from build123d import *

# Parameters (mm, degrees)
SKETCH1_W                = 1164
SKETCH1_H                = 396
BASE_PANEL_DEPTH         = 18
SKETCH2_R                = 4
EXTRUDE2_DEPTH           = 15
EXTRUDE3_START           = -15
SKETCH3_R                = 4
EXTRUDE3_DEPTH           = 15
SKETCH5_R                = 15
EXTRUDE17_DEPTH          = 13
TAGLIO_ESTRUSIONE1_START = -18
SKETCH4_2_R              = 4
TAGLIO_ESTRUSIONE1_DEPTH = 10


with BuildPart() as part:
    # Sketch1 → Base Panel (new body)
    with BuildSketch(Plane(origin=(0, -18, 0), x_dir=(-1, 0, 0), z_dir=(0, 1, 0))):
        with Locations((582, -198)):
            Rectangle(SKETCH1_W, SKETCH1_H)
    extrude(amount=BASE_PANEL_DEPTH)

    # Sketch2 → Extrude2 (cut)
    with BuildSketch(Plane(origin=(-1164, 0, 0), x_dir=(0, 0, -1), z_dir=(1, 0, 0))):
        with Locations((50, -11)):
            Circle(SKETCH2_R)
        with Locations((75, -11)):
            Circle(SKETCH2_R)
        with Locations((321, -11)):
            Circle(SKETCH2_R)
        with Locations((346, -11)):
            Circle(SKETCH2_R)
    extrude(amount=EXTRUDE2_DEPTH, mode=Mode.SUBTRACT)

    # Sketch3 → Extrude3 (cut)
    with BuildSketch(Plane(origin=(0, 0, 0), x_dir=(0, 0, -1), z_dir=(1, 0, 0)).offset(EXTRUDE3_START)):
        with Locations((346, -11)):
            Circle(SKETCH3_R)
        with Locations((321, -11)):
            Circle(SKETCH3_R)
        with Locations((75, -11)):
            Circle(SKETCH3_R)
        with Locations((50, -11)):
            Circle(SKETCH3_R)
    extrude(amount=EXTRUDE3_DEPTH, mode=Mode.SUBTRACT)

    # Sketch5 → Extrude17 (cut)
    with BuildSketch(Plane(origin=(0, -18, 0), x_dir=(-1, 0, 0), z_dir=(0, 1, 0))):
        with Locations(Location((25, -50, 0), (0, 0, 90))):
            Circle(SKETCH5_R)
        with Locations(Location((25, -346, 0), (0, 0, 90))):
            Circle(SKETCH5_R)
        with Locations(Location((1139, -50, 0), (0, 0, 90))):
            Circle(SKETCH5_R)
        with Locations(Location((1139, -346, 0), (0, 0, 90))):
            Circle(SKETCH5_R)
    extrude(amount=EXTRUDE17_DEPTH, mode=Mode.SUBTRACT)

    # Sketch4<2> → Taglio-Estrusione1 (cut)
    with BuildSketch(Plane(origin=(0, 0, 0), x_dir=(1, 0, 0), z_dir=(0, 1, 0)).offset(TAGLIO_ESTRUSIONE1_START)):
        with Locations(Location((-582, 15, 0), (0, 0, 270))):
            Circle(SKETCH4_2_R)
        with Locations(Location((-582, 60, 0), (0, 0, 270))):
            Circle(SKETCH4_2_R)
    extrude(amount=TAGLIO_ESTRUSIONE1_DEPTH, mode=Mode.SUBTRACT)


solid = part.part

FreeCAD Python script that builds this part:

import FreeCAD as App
import Part
import Sketcher
Q = App.Units.Quantity

doc = App.newDocument("Part")
body = doc.addObject("PartDesign::Body", "Body")

sketch1 = doc.addObject("Sketcher::SketchObject", "Sketch")
body.addObject(sketch1)
sketch1.AttachmentSupport = (doc.XZ_Plane, [""])
sketch1.MapMode = "FlatFace"
sketch1.AttachmentOffset = App.Placement(App.Vector(0, 0, 18), App.Rotation())
sketch1.addGeometry(Part.LineSegment(App.Vector(0, 0, 0), App.Vector(0, -396, 0)), False)
sketch1.addGeometry(Part.LineSegment(App.Vector(0, -396, 0), App.Vector(-1164, -396, 0)), False)
sketch1.addGeometry(Part.LineSegment(App.Vector(-1164, -396, 0), App.Vector(-1164, 0, 0)), False)
sketch1.addGeometry(Part.LineSegment(App.Vector(-1164, 0, 0), App.Vector(0, 0, 0)), False)
sketch1.addConstraint(Sketcher.Constraint("Coincident", 0, 2, 1, 1))
sketch1.addConstraint(Sketcher.Constraint("Coincident", 1, 2, 2, 1))
sketch1.addConstraint(Sketcher.Constraint("Coincident", 2, 2, 3, 1))
sketch1.addConstraint(Sketcher.Constraint("Coincident", 3, 2, 0, 1))
sketch1.addConstraint(Sketcher.Constraint("Vertical", 0))
sketch1.addConstraint(Sketcher.Constraint("Horizontal", 1))
sketch1.addConstraint(Sketcher.Constraint("Vertical", 2))
sketch1.addConstraint(Sketcher.Constraint("Horizontal", 3))
sketch1.addConstraint(Sketcher.Constraint("Coincident", 3, 2, -1, 1))
sketch1.addConstraint(Sketcher.Constraint("DistanceX", 1, 2, 1, 1, Q("1164 mm")))
sketch1.addConstraint(Sketcher.Constraint("DistanceY", 0, 2, 0, 1, Q("396 mm")))
pad1 = doc.addObject("PartDesign::Pad", "Pad")
body.addObject(pad1)
pad1.Profile = sketch1
pad1.Length = 18
pad1.Reversed = True

sketch2 = doc.addObject("Sketcher::SketchObject", "Sketch001")
body.addObject(sketch2)
sketch2.AttachmentSupport = (doc.YZ_Plane, [""])
sketch2.MapMode = "FlatFace"
sketch2.AttachmentOffset = App.Placement(App.Vector(0, 0, -1164), App.Rotation())
sketch2.addGeometry(Part.Circle(App.Vector(-11, -50, 0), App.Vector(0, 0, 1), 4), False)
sketch2.addGeometry(Part.Circle(App.Vector(-11, -75, 0), App.Vector(0, 0, 1), 4), False)
sketch2.addGeometry(Part.Circle(App.Vector(-11, -321, 0), App.Vector(0, 0, 1), 4), False)
sketch2.addGeometry(Part.Circle(App.Vector(-11, -346, 0), App.Vector(0, 0, 1), 4), False)
sketch2.addConstraint(Sketcher.Constraint("Equal", 0, 1))
sketch2.addConstraint(Sketcher.Constraint("Equal", 1, 2))
sketch2.addConstraint(Sketcher.Constraint("Equal", 2, 3))
sketch2.addConstraint(Sketcher.Constraint("Vertical", 0, 3, 1, 3))
sketch2.addConstraint(Sketcher.Constraint("Vertical", 1, 3, 2, 3))
sketch2.addConstraint(Sketcher.Constraint("Vertical", 2, 3, 3, 3))
sketch2.addConstraint(Sketcher.Constraint("Diameter", 0, Q("8 mm")))
sketch2.addConstraint(Sketcher.Constraint("DistanceX", 0, 3, -1, 1, Q("11 mm")))
sketch2.addConstraint(Sketcher.Constraint("DistanceY", 0, 3, -1, 1, Q("50 mm")))
sketch2.addConstraint(Sketcher.Constraint("DistanceY", 1, 3, -1, 1, Q("75 mm")))
sketch2.addConstraint(Sketcher.Constraint("DistanceY", 2, 3, -1, 1, Q("321 mm")))
sketch2.addConstraint(Sketcher.Constraint("DistanceY", 3, 3, -1, 1, Q("346 mm")))
pocket1 = doc.addObject("PartDesign::Pocket", "Pocket")
body.addObject(pocket1)
pocket1.Profile = sketch2
pocket1.Length = 15
pocket1.Reversed = True

sketch3 = doc.addObject("Sketcher::SketchObject", "Sketch002")
body.addObject(sketch3)
sketch3.AttachmentSupport = (doc.YZ_Plane, [""])
sketch3.MapMode = "FlatFace"
sketch3.AttachmentOffset = App.Placement(App.Vector(0, 0, -15), App.Rotation())
sketch3.addGeometry(Part.Circle(App.Vector(-11, -346, 0), App.Vector(0, 0, 1), 4), False)
sketch3.addGeometry(Part.Circle(App.Vector(-11, -321, 0), App.Vector(0, 0, 1), 4), False)
sketch3.addGeometry(Part.Circle(App.Vector(-11, -75, 0), App.Vector(0, 0, 1), 4), False)
sketch3.addGeometry(Part.Circle(App.Vector(-11, -50, 0), App.Vector(0, 0, 1), 4), False)
sketch3.addConstraint(Sketcher.Constraint("Equal", 0, 1))
sketch3.addConstraint(Sketcher.Constraint("Equal", 1, 2))
sketch3.addConstraint(Sketcher.Constraint("Equal", 2, 3))
sketch3.addConstraint(Sketcher.Constraint("Vertical", 0, 3, 1, 3))
sketch3.addConstraint(Sketcher.Constraint("Vertical", 1, 3, 2, 3))
sketch3.addConstraint(Sketcher.Constraint("Vertical", 2, 3, 3, 3))
sketch3.addConstraint(Sketcher.Constraint("Diameter", 0, Q("8 mm")))
sketch3.addConstraint(Sketcher.Constraint("DistanceX", 0, 3, -1, 1, Q("11 mm")))
sketch3.addConstraint(Sketcher.Constraint("DistanceY", 0, 3, -1, 1, Q("346 mm")))
sketch3.addConstraint(Sketcher.Constraint("DistanceY", 1, 3, -1, 1, Q("321 mm")))
sketch3.addConstraint(Sketcher.Constraint("DistanceY", 2, 3, -1, 1, Q("75 mm")))
sketch3.addConstraint(Sketcher.Constraint("DistanceY", 3, 3, -1, 1, Q("50 mm")))
pocket2 = doc.addObject("PartDesign::Pocket", "Pocket001")
body.addObject(pocket2)
pocket2.Profile = sketch3
pocket2.Length = 15
pocket2.Reversed = True

sketch4 = doc.addObject("Sketcher::SketchObject", "Sketch003")
body.addObject(sketch4)
sketch4.AttachmentSupport = (doc.XZ_Plane, [""])
sketch4.MapMode = "FlatFace"
sketch4.AttachmentOffset = App.Placement(App.Vector(0, 0, 18), App.Rotation())
sketch4.addGeometry(Part.Circle(App.Vector(-25, -50, 0), App.Vector(0, 0, 1), 15), False)
sketch4.addGeometry(Part.Circle(App.Vector(-25, -346, 0), App.Vector(0, 0, 1), 15), False)
sketch4.addGeometry(Part.Circle(App.Vector(-1139, -50, 0), App.Vector(0, 0, 1), 15), False)
sketch4.addGeometry(Part.Circle(App.Vector(-1139, -346, 0), App.Vector(0, 0, 1), 15), False)
sketch4.addConstraint(Sketcher.Constraint("Equal", 0, 1))
sketch4.addConstraint(Sketcher.Constraint("Equal", 1, 2))
sketch4.addConstraint(Sketcher.Constraint("Equal", 2, 3))
sketch4.addConstraint(Sketcher.Constraint("Horizontal", 0, 3, 2, 3))
sketch4.addConstraint(Sketcher.Constraint("Horizontal", 1, 3, 3, 3))
sketch4.addConstraint(Sketcher.Constraint("Vertical", 0, 3, 1, 3))
sketch4.addConstraint(Sketcher.Constraint("Vertical", 2, 3, 3, 3))
sketch4.addConstraint(Sketcher.Constraint("Diameter", 0, Q("30 mm")))
sketch4.addConstraint(Sketcher.Constraint("DistanceX", 0, 3, -1, 1, Q("25 mm")))
sketch4.addConstraint(Sketcher.Constraint("DistanceY", 0, 3, -1, 1, Q("50 mm")))
sketch4.addConstraint(Sketcher.Constraint("DistanceY", 1, 3, -1, 1, Q("346 mm")))
sketch4.addConstraint(Sketcher.Constraint("DistanceX", 2, 3, -1, 1, Q("1139 mm")))
pocket3 = doc.addObject("PartDesign::Pocket", "Pocket002")
body.addObject(pocket3)
pocket3.Profile = sketch4
pocket3.Length = 13

sketch5 = doc.addObject("Sketcher::SketchObject", "Sketch004")
body.addObject(sketch5)
sketch5.AttachmentSupport = (doc.XZ_Plane, [""])
sketch5.MapMode = "FlatFace"
sketch5.AttachmentOffset = App.Placement(App.Vector(0, 0, 18), App.Rotation())
sketch5.addGeometry(Part.Circle(App.Vector(-582, -15, 0), App.Vector(0, 0, 1), 4), False)
sketch5.addGeometry(Part.Circle(App.Vector(-582, -60, 0), App.Vector(0, 0, 1), 4), False)
sketch5.addConstraint(Sketcher.Constraint("Equal", 0, 1))
sketch5.addConstraint(Sketcher.Constraint("Vertical", 0, 3, 1, 3))
sketch5.addConstraint(Sketcher.Constraint("Diameter", 0, Q("8 mm")))
sketch5.addConstraint(Sketcher.Constraint("DistanceX", 0, 3, -1, 1, Q("582 mm")))
sketch5.addConstraint(Sketcher.Constraint("DistanceY", 0, 3, -1, 1, Q("15 mm")))
sketch5.addConstraint(Sketcher.Constraint("DistanceY", 1, 3, -1, 1, Q("60 mm")))
pocket4 = doc.addObject("PartDesign::Pocket", "Pocket003")
body.addObject(pocket4)
pocket4.Profile = sketch5
pocket4.Length = 10

doc.recompute()
